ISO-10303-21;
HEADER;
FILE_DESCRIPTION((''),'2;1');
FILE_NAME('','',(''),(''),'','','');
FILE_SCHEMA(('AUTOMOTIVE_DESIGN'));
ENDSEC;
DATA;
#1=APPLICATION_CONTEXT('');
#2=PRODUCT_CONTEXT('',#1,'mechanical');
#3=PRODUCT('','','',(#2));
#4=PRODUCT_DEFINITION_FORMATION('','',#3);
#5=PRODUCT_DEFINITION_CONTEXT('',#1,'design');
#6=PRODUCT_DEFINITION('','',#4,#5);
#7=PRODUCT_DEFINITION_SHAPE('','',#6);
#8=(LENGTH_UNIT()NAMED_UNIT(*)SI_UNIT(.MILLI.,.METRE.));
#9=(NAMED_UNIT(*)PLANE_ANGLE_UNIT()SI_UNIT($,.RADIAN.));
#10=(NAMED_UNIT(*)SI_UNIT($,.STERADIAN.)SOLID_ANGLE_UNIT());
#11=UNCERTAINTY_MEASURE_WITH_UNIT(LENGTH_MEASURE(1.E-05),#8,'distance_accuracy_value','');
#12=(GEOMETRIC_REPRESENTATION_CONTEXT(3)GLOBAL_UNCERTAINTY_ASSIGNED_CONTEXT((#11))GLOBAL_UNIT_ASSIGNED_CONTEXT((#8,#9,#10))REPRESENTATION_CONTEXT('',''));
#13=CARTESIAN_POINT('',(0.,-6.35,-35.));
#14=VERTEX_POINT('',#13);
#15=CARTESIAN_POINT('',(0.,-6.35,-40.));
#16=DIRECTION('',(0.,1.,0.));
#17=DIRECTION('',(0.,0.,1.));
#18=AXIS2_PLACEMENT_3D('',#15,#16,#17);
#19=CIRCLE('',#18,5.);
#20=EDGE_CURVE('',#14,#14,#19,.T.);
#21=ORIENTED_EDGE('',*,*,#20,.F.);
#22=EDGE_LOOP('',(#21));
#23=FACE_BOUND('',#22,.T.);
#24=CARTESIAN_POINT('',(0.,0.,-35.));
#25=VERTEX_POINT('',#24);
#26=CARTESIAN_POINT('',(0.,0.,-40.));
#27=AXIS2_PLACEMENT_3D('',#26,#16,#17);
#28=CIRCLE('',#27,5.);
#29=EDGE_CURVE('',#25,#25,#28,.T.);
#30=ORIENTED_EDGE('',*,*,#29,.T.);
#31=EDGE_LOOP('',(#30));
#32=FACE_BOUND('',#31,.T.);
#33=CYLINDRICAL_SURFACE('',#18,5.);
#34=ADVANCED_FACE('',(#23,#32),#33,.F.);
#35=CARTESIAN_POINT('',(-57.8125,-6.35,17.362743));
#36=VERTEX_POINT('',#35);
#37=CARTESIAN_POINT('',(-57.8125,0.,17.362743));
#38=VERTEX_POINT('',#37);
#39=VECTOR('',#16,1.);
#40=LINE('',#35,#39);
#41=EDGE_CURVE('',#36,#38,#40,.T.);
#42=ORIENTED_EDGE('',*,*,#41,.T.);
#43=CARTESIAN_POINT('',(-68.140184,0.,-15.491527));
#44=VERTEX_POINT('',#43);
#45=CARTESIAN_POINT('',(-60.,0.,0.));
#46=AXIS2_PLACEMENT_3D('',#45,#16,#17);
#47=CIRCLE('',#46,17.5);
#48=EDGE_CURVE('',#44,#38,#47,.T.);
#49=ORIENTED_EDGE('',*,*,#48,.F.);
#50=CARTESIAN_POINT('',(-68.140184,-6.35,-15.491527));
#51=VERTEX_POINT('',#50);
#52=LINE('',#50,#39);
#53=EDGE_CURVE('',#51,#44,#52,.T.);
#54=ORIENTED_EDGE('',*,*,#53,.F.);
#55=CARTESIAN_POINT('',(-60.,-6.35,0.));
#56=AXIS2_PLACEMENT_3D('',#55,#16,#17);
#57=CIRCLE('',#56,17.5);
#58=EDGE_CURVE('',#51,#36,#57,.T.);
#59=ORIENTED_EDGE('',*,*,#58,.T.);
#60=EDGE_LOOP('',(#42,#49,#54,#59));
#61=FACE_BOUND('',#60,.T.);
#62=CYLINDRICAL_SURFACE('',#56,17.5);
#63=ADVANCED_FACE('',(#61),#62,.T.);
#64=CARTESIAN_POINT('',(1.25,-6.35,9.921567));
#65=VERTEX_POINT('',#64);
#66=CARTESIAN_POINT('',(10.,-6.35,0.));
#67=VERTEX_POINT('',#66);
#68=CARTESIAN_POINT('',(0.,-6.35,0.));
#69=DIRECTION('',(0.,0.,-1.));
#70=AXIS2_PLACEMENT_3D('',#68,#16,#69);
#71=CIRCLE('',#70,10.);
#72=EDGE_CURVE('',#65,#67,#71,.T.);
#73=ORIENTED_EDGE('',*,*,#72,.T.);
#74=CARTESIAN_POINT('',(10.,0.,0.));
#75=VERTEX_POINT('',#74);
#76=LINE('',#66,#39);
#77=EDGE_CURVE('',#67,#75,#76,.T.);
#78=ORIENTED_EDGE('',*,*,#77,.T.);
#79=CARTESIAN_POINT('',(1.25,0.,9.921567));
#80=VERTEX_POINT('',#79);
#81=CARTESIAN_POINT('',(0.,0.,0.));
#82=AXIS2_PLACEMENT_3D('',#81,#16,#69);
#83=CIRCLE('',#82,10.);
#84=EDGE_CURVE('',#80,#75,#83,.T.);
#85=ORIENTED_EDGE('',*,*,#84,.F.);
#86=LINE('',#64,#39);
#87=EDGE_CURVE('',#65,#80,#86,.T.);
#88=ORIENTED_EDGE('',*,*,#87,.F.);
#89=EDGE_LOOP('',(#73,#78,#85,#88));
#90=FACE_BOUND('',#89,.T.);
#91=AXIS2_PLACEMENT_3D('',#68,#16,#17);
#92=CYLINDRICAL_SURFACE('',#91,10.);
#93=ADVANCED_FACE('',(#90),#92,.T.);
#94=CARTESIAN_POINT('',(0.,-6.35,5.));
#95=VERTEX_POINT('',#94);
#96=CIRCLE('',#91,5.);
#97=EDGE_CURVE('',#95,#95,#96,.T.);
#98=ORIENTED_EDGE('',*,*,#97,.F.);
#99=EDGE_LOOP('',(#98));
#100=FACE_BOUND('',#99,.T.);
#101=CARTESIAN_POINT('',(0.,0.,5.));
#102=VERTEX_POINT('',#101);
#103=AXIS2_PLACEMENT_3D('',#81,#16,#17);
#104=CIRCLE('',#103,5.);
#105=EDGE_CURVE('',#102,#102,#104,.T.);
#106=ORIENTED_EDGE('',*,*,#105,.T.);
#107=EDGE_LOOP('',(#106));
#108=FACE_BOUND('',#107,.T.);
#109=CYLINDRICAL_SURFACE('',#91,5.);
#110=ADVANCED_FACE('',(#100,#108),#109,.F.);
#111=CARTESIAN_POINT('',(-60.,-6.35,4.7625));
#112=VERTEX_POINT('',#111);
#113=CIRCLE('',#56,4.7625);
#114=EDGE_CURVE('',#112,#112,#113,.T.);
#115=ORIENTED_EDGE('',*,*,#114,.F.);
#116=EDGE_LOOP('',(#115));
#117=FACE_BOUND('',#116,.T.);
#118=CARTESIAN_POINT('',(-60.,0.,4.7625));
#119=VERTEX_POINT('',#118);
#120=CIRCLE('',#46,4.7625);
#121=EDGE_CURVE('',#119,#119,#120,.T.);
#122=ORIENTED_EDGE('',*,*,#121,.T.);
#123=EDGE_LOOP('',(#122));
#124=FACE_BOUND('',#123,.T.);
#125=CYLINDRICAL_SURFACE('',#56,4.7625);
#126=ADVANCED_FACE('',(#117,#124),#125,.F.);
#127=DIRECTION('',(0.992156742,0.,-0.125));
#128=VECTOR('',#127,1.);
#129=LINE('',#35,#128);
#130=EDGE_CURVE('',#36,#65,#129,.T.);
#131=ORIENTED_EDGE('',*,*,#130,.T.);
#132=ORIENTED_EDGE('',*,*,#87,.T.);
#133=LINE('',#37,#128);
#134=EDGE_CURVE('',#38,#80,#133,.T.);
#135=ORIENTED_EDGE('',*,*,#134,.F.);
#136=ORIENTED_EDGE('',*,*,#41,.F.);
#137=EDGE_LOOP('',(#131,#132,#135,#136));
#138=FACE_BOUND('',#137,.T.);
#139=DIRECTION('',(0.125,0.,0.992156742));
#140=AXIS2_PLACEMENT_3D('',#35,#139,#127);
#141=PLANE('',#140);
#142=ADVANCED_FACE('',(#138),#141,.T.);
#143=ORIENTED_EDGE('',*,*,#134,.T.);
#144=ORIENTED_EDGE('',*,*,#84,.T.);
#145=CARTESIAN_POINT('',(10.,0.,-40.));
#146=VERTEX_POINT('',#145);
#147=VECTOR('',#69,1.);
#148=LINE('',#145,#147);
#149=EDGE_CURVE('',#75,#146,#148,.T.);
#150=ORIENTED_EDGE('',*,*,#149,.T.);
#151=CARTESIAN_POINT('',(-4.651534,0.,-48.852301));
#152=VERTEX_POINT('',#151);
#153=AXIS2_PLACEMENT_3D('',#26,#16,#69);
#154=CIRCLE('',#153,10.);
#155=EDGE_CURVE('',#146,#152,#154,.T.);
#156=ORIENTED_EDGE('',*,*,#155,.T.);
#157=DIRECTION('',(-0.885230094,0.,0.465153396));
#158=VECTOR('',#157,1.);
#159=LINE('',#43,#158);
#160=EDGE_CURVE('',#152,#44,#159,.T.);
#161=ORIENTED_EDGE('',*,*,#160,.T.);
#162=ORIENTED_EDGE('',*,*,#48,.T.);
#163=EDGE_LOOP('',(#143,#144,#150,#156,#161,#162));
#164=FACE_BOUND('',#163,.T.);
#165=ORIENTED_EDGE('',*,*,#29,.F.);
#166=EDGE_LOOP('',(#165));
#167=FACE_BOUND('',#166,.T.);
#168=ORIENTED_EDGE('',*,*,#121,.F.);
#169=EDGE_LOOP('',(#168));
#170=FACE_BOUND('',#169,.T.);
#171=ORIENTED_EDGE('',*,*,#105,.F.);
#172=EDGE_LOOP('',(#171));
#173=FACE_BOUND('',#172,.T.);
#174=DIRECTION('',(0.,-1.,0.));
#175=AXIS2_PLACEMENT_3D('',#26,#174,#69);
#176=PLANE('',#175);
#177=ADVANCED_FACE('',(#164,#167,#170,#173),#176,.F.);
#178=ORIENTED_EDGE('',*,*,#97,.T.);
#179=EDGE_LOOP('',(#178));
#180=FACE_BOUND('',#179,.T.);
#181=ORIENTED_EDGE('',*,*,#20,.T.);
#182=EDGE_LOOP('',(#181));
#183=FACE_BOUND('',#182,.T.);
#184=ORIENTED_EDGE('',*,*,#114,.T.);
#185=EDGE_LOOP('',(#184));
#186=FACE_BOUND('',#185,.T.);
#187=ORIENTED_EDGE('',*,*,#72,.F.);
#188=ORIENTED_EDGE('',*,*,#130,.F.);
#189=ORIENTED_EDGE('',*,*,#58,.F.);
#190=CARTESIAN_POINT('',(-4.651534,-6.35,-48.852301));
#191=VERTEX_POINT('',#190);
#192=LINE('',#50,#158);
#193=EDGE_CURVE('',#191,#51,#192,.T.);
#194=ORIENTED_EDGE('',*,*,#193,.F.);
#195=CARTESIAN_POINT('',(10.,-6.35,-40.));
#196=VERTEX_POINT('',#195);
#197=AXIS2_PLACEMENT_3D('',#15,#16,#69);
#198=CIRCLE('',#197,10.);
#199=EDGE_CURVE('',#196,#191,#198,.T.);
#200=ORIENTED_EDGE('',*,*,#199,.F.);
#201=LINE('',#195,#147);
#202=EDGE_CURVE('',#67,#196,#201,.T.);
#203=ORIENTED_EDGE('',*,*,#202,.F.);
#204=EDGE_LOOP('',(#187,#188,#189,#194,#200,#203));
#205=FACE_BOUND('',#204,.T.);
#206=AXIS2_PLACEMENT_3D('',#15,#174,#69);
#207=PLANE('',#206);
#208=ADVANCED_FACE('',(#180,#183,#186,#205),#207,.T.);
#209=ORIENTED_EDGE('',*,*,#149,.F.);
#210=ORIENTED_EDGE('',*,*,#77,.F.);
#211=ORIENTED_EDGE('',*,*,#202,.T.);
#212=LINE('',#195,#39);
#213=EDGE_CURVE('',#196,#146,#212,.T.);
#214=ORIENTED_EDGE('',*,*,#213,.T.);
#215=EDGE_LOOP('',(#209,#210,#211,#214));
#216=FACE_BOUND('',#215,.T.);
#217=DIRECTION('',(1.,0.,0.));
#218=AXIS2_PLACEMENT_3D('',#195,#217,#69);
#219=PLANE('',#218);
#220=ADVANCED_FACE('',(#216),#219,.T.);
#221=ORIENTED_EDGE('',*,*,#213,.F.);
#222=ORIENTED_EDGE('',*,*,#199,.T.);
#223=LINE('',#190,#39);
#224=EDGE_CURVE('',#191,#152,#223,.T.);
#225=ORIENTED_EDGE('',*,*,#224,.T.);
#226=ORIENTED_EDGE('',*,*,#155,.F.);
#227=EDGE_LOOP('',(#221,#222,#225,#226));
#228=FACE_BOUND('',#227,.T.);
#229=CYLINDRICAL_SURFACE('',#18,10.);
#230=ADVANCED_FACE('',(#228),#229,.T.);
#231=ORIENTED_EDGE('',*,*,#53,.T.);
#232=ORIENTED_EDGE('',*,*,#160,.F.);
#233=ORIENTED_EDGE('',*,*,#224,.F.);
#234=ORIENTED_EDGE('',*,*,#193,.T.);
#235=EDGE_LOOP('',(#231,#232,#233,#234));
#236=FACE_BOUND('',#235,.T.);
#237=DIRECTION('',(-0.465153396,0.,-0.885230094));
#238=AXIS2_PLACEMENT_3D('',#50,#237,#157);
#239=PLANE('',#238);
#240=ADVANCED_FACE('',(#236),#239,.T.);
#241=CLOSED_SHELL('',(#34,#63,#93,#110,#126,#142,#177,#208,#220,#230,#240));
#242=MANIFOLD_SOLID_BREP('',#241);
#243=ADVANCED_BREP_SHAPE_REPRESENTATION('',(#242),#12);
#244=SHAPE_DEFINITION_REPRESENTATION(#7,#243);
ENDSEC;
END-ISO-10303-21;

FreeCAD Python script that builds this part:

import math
import FreeCAD as App
import Part
import Sketcher
from FreeCAD import Vector

doc = App.newDocument("Part")
body = doc.addObject("PartDesign::Body", "Body")

sketch1 = body.newObject("Sketcher::SketchObject", "Sketch")
sketch1.AttachmentSupport = (doc.getObject("XZ_Plane"), [""])
sketch1.MapMode = "FlatFace"
sketch1.addGeometry(Part.LineSegment(Vector(10, 0, 0), Vector(10, -40, 0)), False)
sketch1.addGeometry(Part.ArcOfCircle(Part.Circle(Vector(0, -40, 0), Vector(0, 0, 1), 10), math.radians(-118), math.radians(0)), False)
sketch1.addGeometry(Part.LineSegment(Vector(-4.7, -48.9, 0), Vector(-68.1, -15.5, 0)), False)
sketch1.addGeometry(Part.ArcOfCircle(Part.Circle(Vector(-60, 0, 0), Vector(0, 0, 1), 17.5), math.radians(83), math.radians(242)), False)
sketch1.addGeometry(Part.LineSegment(Vector(-57.8, 17.4, 0), Vector(1.2, 9.9, 0)), False)
sketch1.addGeometry(Part.ArcOfCircle(Part.Circle(Vector(0, 0, 0), Vector(0, 0, 1), 10), math.radians(0), math.radians(83)), False)
sketch1.addGeometry(Part.Circle(Vector(0, 0, 0), Vector(0, 0, 1), 5), False)
sketch1.addGeometry(Part.Circle(Vector(-60, 0, 0), Vector(0, 0, 1), 4.8), False)
sketch1.addGeometry(Part.Circle(Vector(0, -40, 0), Vector(0, 0, 1), 5), False)
sketch1.addConstraint(Sketcher.Constraint("Tangent", 0, 2, 1, 2))
sketch1.addConstraint(Sketcher.Constraint("Tangent", 1, 1, 2, 1))
sketch1.addConstraint(Sketcher.Constraint("Tangent", 2, 2, 3, 2))
sketch1.addConstraint(Sketcher.Constraint("Tangent", 3, 1, 4, 1))
sketch1.addConstraint(Sketcher.Constraint("Tangent", 4, 2, 5, 2))
sketch1.addConstraint(Sketcher.Constraint("Tangent", 5, 1, 0, 1))
sketch1.addConstraint(Sketcher.Constraint("Vertical", 0))
sketch1.addConstraint(Sketcher.Constraint("Coincident", 5, 3, -1, 1))
sketch1.addConstraint(Sketcher.Constraint("Coincident", 6, 3, -1, 1))
sketch1.addConstraint(Sketcher.Constraint("Coincident", 7, 3, 3, 3))
sketch1.addConstraint(Sketcher.Constraint("Coincident", 8, 3, 1, 3))
sketch1.addConstraint(Sketcher.Constraint("Equal", 1, 5))
sketch1.addConstraint(Sketcher.Constraint("Equal", 6, 8))
sketch1.addConstraint(Sketcher.Constraint("PointOnObject", 3, 3, -1))
sketch1.addConstraint(Sketcher.Constraint("Diameter", 6, 10.0))
sketch1.addConstraint(Sketcher.Constraint("Radius", 1, 10.0))
sketch1.addConstraint(Sketcher.Constraint("Radius", 3, 17.5))
sketch1.addConstraint(Sketcher.Constraint("DistanceY", 0, 2, 0, 1, 40.0))
sketch1.addConstraint(Sketcher.Constraint("Diameter", 7, 9.525))
sketch1.addConstraint(Sketcher.Constraint("DistanceX", 3, 3, -1, 1, 60.0))
pad1 = body.newObject("PartDesign::Pad", "Pad")
pad1.Profile = sketch1
pad1.Length = 6.35

doc.recompute()
